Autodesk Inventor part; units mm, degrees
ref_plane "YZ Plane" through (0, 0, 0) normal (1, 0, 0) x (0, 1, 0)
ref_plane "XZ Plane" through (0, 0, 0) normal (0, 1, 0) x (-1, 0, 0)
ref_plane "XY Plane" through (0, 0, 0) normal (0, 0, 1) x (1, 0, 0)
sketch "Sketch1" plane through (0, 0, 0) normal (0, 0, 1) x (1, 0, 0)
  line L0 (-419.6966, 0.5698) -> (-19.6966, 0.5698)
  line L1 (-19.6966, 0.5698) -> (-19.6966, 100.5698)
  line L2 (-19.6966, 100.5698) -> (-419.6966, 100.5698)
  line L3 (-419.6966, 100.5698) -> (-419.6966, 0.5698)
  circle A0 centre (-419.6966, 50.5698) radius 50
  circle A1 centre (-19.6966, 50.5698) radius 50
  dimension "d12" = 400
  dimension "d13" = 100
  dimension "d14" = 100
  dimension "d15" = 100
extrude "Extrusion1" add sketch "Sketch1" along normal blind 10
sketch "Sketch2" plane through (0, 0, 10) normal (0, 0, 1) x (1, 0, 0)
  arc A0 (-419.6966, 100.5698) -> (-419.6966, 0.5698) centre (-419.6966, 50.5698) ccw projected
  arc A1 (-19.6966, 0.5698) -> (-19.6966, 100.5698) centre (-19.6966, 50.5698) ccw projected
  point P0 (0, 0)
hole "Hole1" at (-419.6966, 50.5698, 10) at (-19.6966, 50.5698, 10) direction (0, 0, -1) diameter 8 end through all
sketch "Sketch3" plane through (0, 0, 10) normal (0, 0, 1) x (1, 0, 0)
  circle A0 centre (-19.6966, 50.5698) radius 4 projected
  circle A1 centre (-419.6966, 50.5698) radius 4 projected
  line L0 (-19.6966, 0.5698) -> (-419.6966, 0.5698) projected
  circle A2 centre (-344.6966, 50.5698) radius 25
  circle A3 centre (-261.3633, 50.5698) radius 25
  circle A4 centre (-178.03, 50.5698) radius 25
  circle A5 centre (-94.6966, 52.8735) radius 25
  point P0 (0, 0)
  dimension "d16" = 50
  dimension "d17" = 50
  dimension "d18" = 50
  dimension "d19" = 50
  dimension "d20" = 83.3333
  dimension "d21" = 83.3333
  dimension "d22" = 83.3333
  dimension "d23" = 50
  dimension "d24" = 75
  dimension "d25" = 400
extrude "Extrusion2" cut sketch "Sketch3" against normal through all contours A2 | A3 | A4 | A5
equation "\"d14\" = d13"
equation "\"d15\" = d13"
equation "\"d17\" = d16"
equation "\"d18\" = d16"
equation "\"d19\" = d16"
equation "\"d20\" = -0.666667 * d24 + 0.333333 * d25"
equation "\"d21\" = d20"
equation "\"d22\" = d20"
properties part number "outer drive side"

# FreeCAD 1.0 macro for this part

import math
import FreeCAD as App
import Part
import Sketcher

V = App.Vector
Q = App.Units.Quantity

doc = App.newDocument("Part")
body = doc.addObject("PartDesign::Body", "Body")

# Sketch on XY plane
sketch1 = body.newObject("Sketcher::SketchObject", "Sketch")
sketch1.AttachmentSupport = (doc.getObject("XY_Plane"), [""])
sketch1.MapMode = "FlatFace"
sketch1.addGeometry(Part.LineSegment(V(-19.6966, 100.5698, 0), V(-419.6966, 100.5698, 0)), False)
sketch1.addGeometry(Part.ArcOfCircle(Part.Circle(V(-419.6966, 50.5698, 0), V(0, 0, 1), 50), math.radians(90), math.radians(270)), False)
sketch1.addGeometry(Part.LineSegment(V(-419.6966, 0.5698, 0), V(-19.6966, 0.5698, 0)), False)
sketch1.addGeometry(Part.ArcOfCircle(Part.Circle(V(-19.6966, 50.5698, 0), V(0, 0, 1), 50), math.radians(-90), math.radians(90)), False)
sketch1.addConstraint(Sketcher.Constraint("Tangent", 0, 2, 1, 1))
sketch1.addConstraint(Sketcher.Constraint("Tangent", 1, 2, 2, 1))
sketch1.addConstraint(Sketcher.Constraint("Tangent", 2, 2, 3, 1))
sketch1.addConstraint(Sketcher.Constraint("Tangent", 3, 2, 0, 1))
sketch1.addConstraint(Sketcher.Constraint("Horizontal", 0))
sketch1.addConstraint(Sketcher.Constraint("Horizontal", 2))
sketch1.addConstraint(Sketcher.Constraint("Radius", 1, Q("50 mm")))
sketch1.addConstraint(Sketcher.Constraint("DistanceX", 0, 2, 0, 1, Q("400 mm")))
sketch1.addConstraint(Sketcher.Constraint("DistanceX", 1, 3, -1, 1, Q("419.6966 mm")))
sketch1.addConstraint(Sketcher.Constraint("DistanceY", -1, 1, 1, 3, Q("50.5698 mm")))
pad1 = body.newObject("PartDesign::Pad", "Pad")
pad1.Profile = sketch1
pad1.Length = 10

# Sketch on XY plane
sketch2 = body.newObject("Sketcher::SketchObject", "Sketch001")
sketch2.AttachmentSupport = (doc.getObject("XY_Plane"), [""])
sketch2.MapMode = "FlatFace"
sketch2.AttachmentOffset = App.Placement(V(0, 0, 10), App.Rotation())
sketch2.addGeometry(Part.Circle(V(-419.6966, 50.5698, 0), V(0, 0, 1), 4), False)
sketch2.addGeometry(Part.Circle(V(-19.6966, 50.5698, 0), V(0, 0, 1), 4), False)
sketch2.addConstraint(Sketcher.Constraint("Equal", 0, 1))
sketch2.addConstraint(Sketcher.Constraint("Horizontal", 0, 3, 1, 3))
sketch2.addConstraint(Sketcher.Constraint("Diameter", 0, Q("8 mm")))
sketch2.addConstraint(Sketcher.Constraint("DistanceX", 0, 3, 1, 3, Q("400 mm")))
sketch2.addConstraint(Sketcher.Constraint("DistanceX", 0, 3, -1, 1, Q("419.6966 mm")))
sketch2.addConstraint(Sketcher.Constraint("DistanceY", -1, 1, 0, 3, Q("50.5698 mm")))
doc.recompute()
hole = body.newObject("PartDesign::Hole", "Hole")
hole.Profile = sketch2
hole.ThreadType = "None"
hole.Diameter = 8
hole.DepthType = "ThroughAll"

# Sketch on XY plane
sketch3 = body.newObject("Sketcher::SketchObject", "Sketch002")
sketch3.AttachmentSupport = (doc.getObject("XY_Plane"), [""])
sketch3.MapMode = "FlatFace"
sketch3.AttachmentOffset = App.Placement(V(0, 0, 10), App.Rotation())
sketch3.addGeometry(Part.Circle(V(-344.6966, 50.5698, 0), V(0, 0, 1), 25), False)
sketch3.addGeometry(Part.Circle(V(-261.3633, 50.5698, 0), V(0, 0, 1), 25), False)
sketch3.addGeometry(Part.Circle(V(-178.03, 50.5698, 0), V(0, 0, 1), 25), False)
sketch3.addGeometry(Part.Circle(V(-94.6966, 52.8735, 0), V(0, 0, 1), 25), False)
sketch3.addConstraint(Sketcher.Constraint("Equal", 0, 1))
sketch3.addConstraint(Sketcher.Constraint("Equal", 1, 2))
sketch3.addConstraint(Sketcher.Constraint("Equal", 2, 3))
sketch3.addConstraint(Sketcher.Constraint("Horizontal", 0, 3, 1, 3))
sketch3.addConstraint(Sketcher.Constraint("Horizontal", 1, 3, 2, 3))
sketch3.addConstraint(Sketcher.Constraint("Diameter", 0, Q("50 mm")))
sketch3.addConstraint(Sketcher.Constraint("DistanceX", 0, 3, 3, 3, Q("250 mm")))
sketch3.addConstraint(Sketcher.Constraint("DistanceX", 0, 3, 1, 3, Q("83.3333 mm")))
sketch3.addConstraint(Sketcher.Constraint("DistanceX", 1, 3, 2, 3, Q("83.3333 mm")))
sketch3.addConstraint(Sketcher.Constraint("DistanceX", 2, 3, -1, 1, Q("178.03 mm")))
sketch3.addConstraint(Sketcher.Constraint("DistanceY", -1, 1, 0, 3, Q("50.5698 mm")))
sketch3.addConstraint(Sketcher.Constraint("DistanceY", -1, 1, 3, 3, Q("52.8735 mm")))
pocket1 = body.newObject("PartDesign::Pocket", "Pocket")
pocket1.Profile = sketch3
pocket1.Type = "ThroughAll"

doc.recompute()
